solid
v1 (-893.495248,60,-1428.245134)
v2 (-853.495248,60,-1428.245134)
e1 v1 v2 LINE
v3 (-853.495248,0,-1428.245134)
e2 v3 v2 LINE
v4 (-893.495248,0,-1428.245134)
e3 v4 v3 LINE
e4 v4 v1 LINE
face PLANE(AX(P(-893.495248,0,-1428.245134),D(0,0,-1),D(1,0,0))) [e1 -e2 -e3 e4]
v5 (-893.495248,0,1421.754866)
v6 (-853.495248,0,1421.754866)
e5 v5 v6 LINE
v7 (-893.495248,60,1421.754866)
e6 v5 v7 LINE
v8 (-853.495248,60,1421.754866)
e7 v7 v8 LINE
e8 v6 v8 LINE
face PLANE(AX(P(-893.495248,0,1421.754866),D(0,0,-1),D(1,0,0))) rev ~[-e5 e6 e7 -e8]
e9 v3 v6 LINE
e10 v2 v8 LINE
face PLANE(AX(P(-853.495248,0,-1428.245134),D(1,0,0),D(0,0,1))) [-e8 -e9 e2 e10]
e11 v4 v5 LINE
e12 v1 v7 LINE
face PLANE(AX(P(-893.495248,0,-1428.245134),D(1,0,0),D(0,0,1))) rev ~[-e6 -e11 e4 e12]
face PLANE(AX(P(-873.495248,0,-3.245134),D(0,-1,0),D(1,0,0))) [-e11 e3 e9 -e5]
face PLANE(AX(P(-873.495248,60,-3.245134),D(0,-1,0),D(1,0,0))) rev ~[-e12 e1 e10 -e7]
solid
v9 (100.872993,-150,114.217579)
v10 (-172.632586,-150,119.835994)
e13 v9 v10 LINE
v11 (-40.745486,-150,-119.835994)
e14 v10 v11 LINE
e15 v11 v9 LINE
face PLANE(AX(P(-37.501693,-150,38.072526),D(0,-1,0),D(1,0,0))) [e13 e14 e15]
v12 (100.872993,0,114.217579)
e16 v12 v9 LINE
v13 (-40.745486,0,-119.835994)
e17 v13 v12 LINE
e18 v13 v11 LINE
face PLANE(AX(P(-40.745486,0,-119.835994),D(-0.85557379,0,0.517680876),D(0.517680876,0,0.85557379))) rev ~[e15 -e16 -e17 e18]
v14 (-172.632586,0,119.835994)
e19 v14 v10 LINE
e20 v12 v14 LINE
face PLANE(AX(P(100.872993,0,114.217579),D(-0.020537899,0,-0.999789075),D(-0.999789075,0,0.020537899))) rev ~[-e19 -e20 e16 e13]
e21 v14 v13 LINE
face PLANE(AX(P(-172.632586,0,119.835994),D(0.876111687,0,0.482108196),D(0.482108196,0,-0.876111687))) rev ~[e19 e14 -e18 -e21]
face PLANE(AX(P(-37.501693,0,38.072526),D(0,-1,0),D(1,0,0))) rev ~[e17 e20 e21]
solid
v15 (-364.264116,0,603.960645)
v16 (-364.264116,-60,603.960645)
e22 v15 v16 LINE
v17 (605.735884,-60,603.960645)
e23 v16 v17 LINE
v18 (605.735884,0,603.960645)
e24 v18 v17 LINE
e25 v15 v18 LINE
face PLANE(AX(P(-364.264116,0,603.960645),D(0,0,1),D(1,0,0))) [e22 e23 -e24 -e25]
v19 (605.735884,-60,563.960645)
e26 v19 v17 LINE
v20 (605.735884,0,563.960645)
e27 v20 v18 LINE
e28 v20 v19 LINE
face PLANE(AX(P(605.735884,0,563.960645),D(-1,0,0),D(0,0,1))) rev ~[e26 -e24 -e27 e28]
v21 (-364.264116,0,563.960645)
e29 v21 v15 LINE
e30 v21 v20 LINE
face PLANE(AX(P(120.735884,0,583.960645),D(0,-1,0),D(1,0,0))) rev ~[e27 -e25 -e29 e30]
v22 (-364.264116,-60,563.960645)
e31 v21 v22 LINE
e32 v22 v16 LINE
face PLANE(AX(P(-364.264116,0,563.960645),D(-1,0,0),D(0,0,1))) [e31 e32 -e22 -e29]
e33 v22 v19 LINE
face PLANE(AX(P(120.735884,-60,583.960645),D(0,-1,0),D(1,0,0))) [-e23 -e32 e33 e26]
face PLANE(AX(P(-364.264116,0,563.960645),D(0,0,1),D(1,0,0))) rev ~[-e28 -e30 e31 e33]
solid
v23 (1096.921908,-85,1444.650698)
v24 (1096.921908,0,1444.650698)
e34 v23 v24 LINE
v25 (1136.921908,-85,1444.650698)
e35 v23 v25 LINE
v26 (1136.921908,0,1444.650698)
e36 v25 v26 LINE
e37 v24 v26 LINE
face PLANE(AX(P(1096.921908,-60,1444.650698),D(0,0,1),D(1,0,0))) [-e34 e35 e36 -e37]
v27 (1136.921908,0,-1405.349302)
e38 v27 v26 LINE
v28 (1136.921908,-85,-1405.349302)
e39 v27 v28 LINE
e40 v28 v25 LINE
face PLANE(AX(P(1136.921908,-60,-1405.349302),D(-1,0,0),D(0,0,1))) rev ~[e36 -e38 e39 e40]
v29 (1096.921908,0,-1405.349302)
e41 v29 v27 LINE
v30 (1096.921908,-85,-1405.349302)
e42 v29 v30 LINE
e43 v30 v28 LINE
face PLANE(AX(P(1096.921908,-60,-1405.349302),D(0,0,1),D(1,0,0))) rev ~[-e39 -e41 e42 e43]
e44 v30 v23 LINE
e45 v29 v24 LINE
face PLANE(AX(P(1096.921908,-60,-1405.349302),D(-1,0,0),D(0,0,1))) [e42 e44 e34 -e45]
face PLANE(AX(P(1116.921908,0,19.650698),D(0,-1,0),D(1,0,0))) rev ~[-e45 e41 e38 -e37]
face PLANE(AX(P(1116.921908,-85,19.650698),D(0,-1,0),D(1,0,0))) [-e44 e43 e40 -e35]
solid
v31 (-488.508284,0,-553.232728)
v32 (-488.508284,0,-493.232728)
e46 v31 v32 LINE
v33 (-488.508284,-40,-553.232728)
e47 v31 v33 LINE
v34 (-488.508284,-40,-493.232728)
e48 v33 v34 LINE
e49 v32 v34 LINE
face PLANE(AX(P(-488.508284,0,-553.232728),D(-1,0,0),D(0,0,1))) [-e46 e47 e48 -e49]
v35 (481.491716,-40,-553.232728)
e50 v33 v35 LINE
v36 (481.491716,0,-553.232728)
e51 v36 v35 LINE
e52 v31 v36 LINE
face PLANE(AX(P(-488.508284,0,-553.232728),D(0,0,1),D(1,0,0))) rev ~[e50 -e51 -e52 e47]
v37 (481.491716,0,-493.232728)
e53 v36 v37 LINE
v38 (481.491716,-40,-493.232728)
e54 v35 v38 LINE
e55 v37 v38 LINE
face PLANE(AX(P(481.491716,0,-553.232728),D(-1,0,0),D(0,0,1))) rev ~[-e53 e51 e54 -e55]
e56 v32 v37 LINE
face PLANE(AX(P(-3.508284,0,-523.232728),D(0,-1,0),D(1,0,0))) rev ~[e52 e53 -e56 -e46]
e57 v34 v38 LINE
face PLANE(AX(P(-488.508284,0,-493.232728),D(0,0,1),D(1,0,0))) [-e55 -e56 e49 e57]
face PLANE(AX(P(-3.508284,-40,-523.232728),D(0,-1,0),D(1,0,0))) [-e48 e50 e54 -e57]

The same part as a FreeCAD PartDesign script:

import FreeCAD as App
import Part
import Sketcher

V = App.Vector

doc = App.newDocument("Part")
body = doc.addObject("PartDesign::Body", "Body")

# Sketch on XZ plane
sketch1 = body.newObject("Sketcher::SketchObject", "Sketch")
sketch1.AttachmentSupport = (doc.getObject("XZ_Plane"), [""])
sketch1.MapMode = "FlatFace"
sketch1.addGeometry(Part.LineSegment(V(-893, 1422, 0), V(-893, -1428, 0)), False)
sketch1.addGeometry(Part.LineSegment(V(-893, -1428, 0), V(-853, -1428, 0)), False)
sketch1.addGeometry(Part.LineSegment(V(-853, -1428, 0), V(-853, 1422, 0)), False)
sketch1.addGeometry(Part.LineSegment(V(-853, 1422, 0), V(-893, 1422, 0)), False)
sketch1.addConstraint(Sketcher.Constraint("Coincident", 0, 2, 1, 1))
sketch1.addConstraint(Sketcher.Constraint("Coincident", 1, 2, 2, 1))
sketch1.addConstraint(Sketcher.Constraint("Coincident", 2, 2, 3, 1))
sketch1.addConstraint(Sketcher.Constraint("Coincident", 3, 2, 0, 1))
sketch1.addConstraint(Sketcher.Constraint("Vertical", 0))
sketch1.addConstraint(Sketcher.Constraint("Horizontal", 1))
sketch1.addConstraint(Sketcher.Constraint("Vertical", 2))
sketch1.addConstraint(Sketcher.Constraint("Horizontal", 3))
sketch1.addConstraint(Sketcher.Constraint("DistanceX", 1, 1, 1, 2, 40.0))
sketch1.addConstraint(Sketcher.Constraint("DistanceY", 0, 2, 0, 1, 2850.0))
sketch1.addConstraint(Sketcher.Constraint("DistanceX", 0, 2, -1, 1, 893.495248))
sketch1.addConstraint(Sketcher.Constraint("DistanceY", 0, 2, -1, 1, 1428.245134))
pad1 = body.newObject("PartDesign::Pad", "Pad")
pad1.Profile = sketch1
pad1.Length = 60
pad1.Reversed = True
body2 = doc.addObject("PartDesign::Body", "Body001")

# Sketch on XZ plane
sketch2 = body2.newObject("Sketcher::SketchObject", "Sketch001")
sketch2.AttachmentSupport = (doc.getObject("XZ_Plane001"), [""])
sketch2.MapMode = "FlatFace"
sketch2.addGeometry(Part.LineSegment(V(-364, 604, 0), V(-364, 564, 0)), False)
sketch2.addGeometry(Part.LineSegment(V(-364, 564, 0), V(606, 564, 0)), False)
sketch2.addGeometry(Part.LineSegment(V(606, 564, 0), V(606, 604, 0)), False)
sketch2.addGeometry(Part.LineSegment(V(606, 604, 0), V(-364, 604, 0)), False)
sketch2.addConstraint(Sketcher.Constraint("Coincident", 0, 2, 1, 1))
sketch2.addConstraint(Sketcher.Constraint("Coincident", 1, 2, 2, 1))
sketch2.addConstraint(Sketcher.Constraint("Coincident", 2, 2, 3, 1))
sketch2.addConstraint(Sketcher.Constraint("Coincident", 3, 2, 0, 1))
sketch2.addConstraint(Sketcher.Constraint("Vertical", 0))
sketch2.addConstraint(Sketcher.Constraint("Horizontal", 1))
sketch2.addConstraint(Sketcher.Constraint("Vertical", 2))
sketch2.addConstraint(Sketcher.Constraint("Horizontal", 3))
sketch2.addConstraint(Sketcher.Constraint("DistanceX", 1, 1, 1, 2, 970.0))
sketch2.addConstraint(Sketcher.Constraint("DistanceY", 0, 2, 0, 1, 40.0))
sketch2.addConstraint(Sketcher.Constraint("DistanceX", 0, 2, -1, 1, 364.264116))
sketch2.addConstraint(Sketcher.Constraint("DistanceY", -1, 1, 0, 2, 563.960645))
pad2 = body2.newObject("PartDesign::Pad", "Pad001")
pad2.Profile = sketch2
pad2.Length = 60
body3 = doc.addObject("PartDesign::Body", "Body002")

# Sketch on XZ plane
sketch3 = body3.newObject("Sketcher::SketchObject", "Sketch002")
sketch3.AttachmentSupport = (doc.getObject("XZ_Plane002"), [""])
sketch3.MapMode = "FlatFace"
sketch3.addGeometry(Part.LineSegment(V(1097, 1445, 0), V(1097, -1405, 0)), False)
sketch3.addGeometry(Part.LineSegment(V(1097, -1405, 0), V(1137, -1405, 0)), False)
sketch3.addGeometry(Part.LineSegment(V(1137, -1405, 0), V(1137, 1445, 0)), False)
sketch3.addGeometry(Part.LineSegment(V(1137, 1445, 0), V(1097, 1445, 0)), False)
sketch3.addConstraint(Sketcher.Constraint("Coincident", 0, 2, 1, 1))
sketch3.addConstraint(Sketcher.Constraint("Coincident", 1, 2, 2, 1))
sketch3.addConstraint(Sketcher.Constraint("Coincident", 2, 2, 3, 1))
sketch3.addConstraint(Sketcher.Constraint("Coincident", 3, 2, 0, 1))
sketch3.addConstraint(Sketcher.Constraint("Vertical", 0))
sketch3.addConstraint(Sketcher.Constraint("Horizontal", 1))
sketch3.addConstraint(Sketcher.Constraint("Vertical", 2))
sketch3.addConstraint(Sketcher.Constraint("Horizontal", 3))
sketch3.addConstraint(Sketcher.Constraint("DistanceX", 1, 1, 1, 2, 40.0))
sketch3.addConstraint(Sketcher.Constraint("DistanceY", 0, 2, 0, 1, 2850.0))
sketch3.addConstraint(Sketcher.Constraint("DistanceY", 0, 2, -1, 1, 1405.349302))
sketch3.addConstraint(Sketcher.Constraint("DistanceX", -1, 1, 0, 2, 1096.921908))
pad3 = body3.newObject("PartDesign::Pad", "Pad002")
pad3.Profile = sketch3
pad3.Length = 60

# Sketch on XZ plane
sketch4 = body3.newObject("Sketcher::SketchObject", "Sketch003")
sketch4.AttachmentSupport = (doc.getObject("XZ_Plane002"), [""])
sketch4.MapMode = "FlatFace"
sketch4.AttachmentOffset = App.Placement(V(0, 0, 60), App.Rotation())
sketch4.addGeometry(Part.LineSegment(V(1097, 1445, 0), V(1097, -1405, 0)), False)
sketch4.addGeometry(Part.LineSegment(V(1097, -1405, 0), V(1137, -1405, 0)), False)
sketch4.addGeometry(Part.LineSegment(V(1137, -1405, 0), V(1137, 1445, 0)), False)
sketch4.addGeometry(Part.LineSegment(V(1137, 1445, 0), V(1097, 1445, 0)), False)
sketch4.addConstraint(Sketcher.Constraint("Coincident", 0, 2, 1, 1))
sketch4.addConstraint(Sketcher.Constraint("Coincident", 1, 2, 2, 1))
sketch4.addConstraint(Sketcher.Constraint("Coincident", 2, 2, 3, 1))
sketch4.addConstraint(Sketcher.Constraint("Coincident", 3, 2, 0, 1))
sketch4.addConstraint(Sketcher.Constraint("Vertical", 0))
sketch4.addConstraint(Sketcher.Constraint("Horizontal", 1))
sketch4.addConstraint(Sketcher.Constraint("Vertical", 2))
sketch4.addConstraint(Sketcher.Constraint("Horizontal", 3))
sketch4.addConstraint(Sketcher.Constraint("DistanceX", 1, 1, 1, 2, 40.0))
sketch4.addConstraint(Sketcher.Constraint("DistanceY", 0, 2, 0, 1, 2850.0))
sketch4.addConstraint(Sketcher.Constraint("DistanceY", 0, 2, -1, 1, 1405.349302))
sketch4.addConstraint(Sketcher.Constraint("DistanceX", -1, 1, 0, 2, 1096.921908))
pad4 = body3.newObject("PartDesign::Pad", "Pad003")
pad4.Profile = sketch4
pad4.Length = 25
body4 = doc.addObject("PartDesign::Body", "Body003")

# Sketch on XZ plane
sketch5 = body4.newObject("Sketcher::SketchObject", "Sketch004")
sketch5.AttachmentSupport = (doc.getObject("XZ_Plane003"), [""])
sketch5.MapMode = "FlatFace"
sketch5.addGeometry(Part.LineSegment(V(-489, -493, 0), V(-489, -553, 0)), False)
sketch5.addGeometry(Part.LineSegment(V(-489, -553, 0), V(481, -553, 0)), False)
sketch5.addGeometry(Part.LineSegment(V(481, -553, 0), V(481, -493, 0)), False)
sketch5.addGeometry(Part.LineSegment(V(481, -493, 0), V(-489, -493, 0)), False)
sketch5.addConstraint(Sketcher.Constraint("Coincident", 0, 2, 1, 1))
sketch5.addConstraint(Sketcher.Constraint("Coincident", 1, 2, 2, 1))
sketch5.addConstraint(Sketcher.Constraint("Coincident", 2, 2, 3, 1))
sketch5.addConstraint(Sketcher.Constraint("Coincident", 3, 2, 0, 1))
sketch5.addConstraint(Sketcher.Constraint("Vertical", 0))
sketch5.addConstraint(Sketcher.Constraint("Horizontal", 1))
sketch5.addConstraint(Sketcher.Constraint("Vertical", 2))
sketch5.addConstraint(Sketcher.Constraint("Horizontal", 3))
sketch5.addConstraint(Sketcher.Constraint("DistanceX", 1, 1, 1, 2, 970.0))
sketch5.addConstraint(Sketcher.Constraint("DistanceY", 0, 2, 0, 1, 60.0))
sketch5.addConstraint(Sketcher.Constraint("DistanceY", 0, 2, -1, 1, 553.232728))
sketch5.addConstraint(Sketcher.Constraint("DistanceX", 0, 2, -1, 1, 488.508284))
pad5 = body4.newObject("PartDesign::Pad", "Pad004")
pad5.Profile = sketch5
pad5.Length = 40
body5 = doc.addObject("PartDesign::Body", "Body004")

# Sketch on XZ plane
sketch6 = body5.newObject("Sketcher::SketchObject", "Sketch005")
sketch6.AttachmentSupport = (doc.getObject("XZ_Plane004"), [""])
sketch6.MapMode = "FlatFace"
sketch6.addGeometry(Part.LineSegment(V(-173, 120, 0), V(-41, -120, 0)), False)
sketch6.addGeometry(Part.LineSegment(V(-41, -120, 0), V(101, 114, 0)), False)
sketch6.addGeometry(Part.LineSegment(V(101, 114, 0), V(-173, 120, 0)), False)
sketch6.addConstraint(Sketcher.Constraint("Coincident", 0, 2, 1, 1))
sketch6.addConstraint(Sketcher.Constraint("Coincident", 1, 2, 2, 1))
sketch6.addConstraint(Sketcher.Constraint("Coincident", 2, 2, 0, 1))
sketch6.addConstraint(Sketcher.Constraint("Equal", 0, 1))
sketch6.addConstraint(Sketcher.Constraint("Equal", 1, 2))
sketch6.addConstraint(Sketcher.Constraint("DistanceX", 2, 2, 0, 2, 131.8871))
sketch6.addConstraint(Sketcher.Constraint("Distance", 0, 273.563281))
sketch6.addConstraint(Sketcher.Constraint("DistanceY", -1, 1, 1, 2, 114.217579))
sketch6.addConstraint(Sketcher.Constraint("DistanceX", 0, 2, -1, 1, 40.745486))
pad6 = body5.newObject("PartDesign::Pad", "Pad005")
pad6.Profile = sketch6
pad6.Length = 150

doc.recompute()
